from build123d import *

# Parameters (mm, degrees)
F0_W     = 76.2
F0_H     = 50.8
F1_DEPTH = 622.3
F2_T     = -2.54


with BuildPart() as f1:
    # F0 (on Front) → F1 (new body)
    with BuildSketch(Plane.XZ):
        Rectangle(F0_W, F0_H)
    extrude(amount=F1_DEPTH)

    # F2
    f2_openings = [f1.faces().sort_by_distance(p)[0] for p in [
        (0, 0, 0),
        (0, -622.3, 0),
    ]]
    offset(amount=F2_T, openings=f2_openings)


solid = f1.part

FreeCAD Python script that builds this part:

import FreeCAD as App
import Part
import Sketcher

V = App.Vector
Q = App.Units.Quantity


def faces_at(feature, points):
    """Names of the faces that lie closest to the given points."""
    faces = feature.Shape.Faces
    near = lambda p: min(range(len(faces)), key=lambda i: faces[i].distToShape(Part.Vertex(*p))[0])
    return sorted({f"Face{near(p) + 1}" for p in points})

doc = App.newDocument("Part")
body = doc.addObject("PartDesign::Body", "Body")

sketch1 = doc.addObject("Sketcher::SketchObject", "Sketch")
body.addObject(sketch1)
sketch1.AttachmentSupport = (doc.XZ_Plane, [""])
sketch1.MapMode = "FlatFace"
sketch1.addGeometry(Part.LineSegment(V(-38, 25, 0), V(-38, -25, 0)), False)
sketch1.addGeometry(Part.LineSegment(V(-38, -25, 0), V(38, -25, 0)), False)
sketch1.addGeometry(Part.LineSegment(V(38, -25, 0), V(38, 25, 0)), False)
sketch1.addGeometry(Part.LineSegment(V(38, 25, 0), V(-38, 25, 0)), False)
sketch1.addConstraint(Sketcher.Constraint("Coincident", 0, 2, 1, 1))
sketch1.addConstraint(Sketcher.Constraint("Coincident", 1, 2, 2, 1))
sketch1.addConstraint(Sketcher.Constraint("Coincident", 2, 2, 3, 1))
sketch1.addConstraint(Sketcher.Constraint("Coincident", 3, 2, 0, 1))
sketch1.addConstraint(Sketcher.Constraint("Vertical", 0))
sketch1.addConstraint(Sketcher.Constraint("Horizontal", 1))
sketch1.addConstraint(Sketcher.Constraint("Vertical", 2))
sketch1.addConstraint(Sketcher.Constraint("Horizontal", 3))
sketch1.addConstraint(Sketcher.Constraint("Symmetric", 0, 2, 2, 2, -1, 1))
sketch1.addConstraint(Sketcher.Constraint("DistanceX", 1, 1, 1, 2, Q("3 in")))
sketch1.addConstraint(Sketcher.Constraint("DistanceY", 0, 2, 0, 1, Q("2 in")))
pad1 = doc.addObject("PartDesign::Pad", "Pad")
body.addObject(pad1)
pad1.Profile = sketch1
pad1.Length = Q("24.5 in")
doc.recompute()

thickness = doc.addObject("PartDesign::Thickness", "Thickness")
body.addObject(thickness)
thickness.Base = (pad1, faces_at(pad1, [(0, 0, 0), (0, -622.3, 0)]))
thickness.Value = Q("0.1 in")
thickness.Reversed = True
thickness.Join = "Arc"

doc.recompute()
